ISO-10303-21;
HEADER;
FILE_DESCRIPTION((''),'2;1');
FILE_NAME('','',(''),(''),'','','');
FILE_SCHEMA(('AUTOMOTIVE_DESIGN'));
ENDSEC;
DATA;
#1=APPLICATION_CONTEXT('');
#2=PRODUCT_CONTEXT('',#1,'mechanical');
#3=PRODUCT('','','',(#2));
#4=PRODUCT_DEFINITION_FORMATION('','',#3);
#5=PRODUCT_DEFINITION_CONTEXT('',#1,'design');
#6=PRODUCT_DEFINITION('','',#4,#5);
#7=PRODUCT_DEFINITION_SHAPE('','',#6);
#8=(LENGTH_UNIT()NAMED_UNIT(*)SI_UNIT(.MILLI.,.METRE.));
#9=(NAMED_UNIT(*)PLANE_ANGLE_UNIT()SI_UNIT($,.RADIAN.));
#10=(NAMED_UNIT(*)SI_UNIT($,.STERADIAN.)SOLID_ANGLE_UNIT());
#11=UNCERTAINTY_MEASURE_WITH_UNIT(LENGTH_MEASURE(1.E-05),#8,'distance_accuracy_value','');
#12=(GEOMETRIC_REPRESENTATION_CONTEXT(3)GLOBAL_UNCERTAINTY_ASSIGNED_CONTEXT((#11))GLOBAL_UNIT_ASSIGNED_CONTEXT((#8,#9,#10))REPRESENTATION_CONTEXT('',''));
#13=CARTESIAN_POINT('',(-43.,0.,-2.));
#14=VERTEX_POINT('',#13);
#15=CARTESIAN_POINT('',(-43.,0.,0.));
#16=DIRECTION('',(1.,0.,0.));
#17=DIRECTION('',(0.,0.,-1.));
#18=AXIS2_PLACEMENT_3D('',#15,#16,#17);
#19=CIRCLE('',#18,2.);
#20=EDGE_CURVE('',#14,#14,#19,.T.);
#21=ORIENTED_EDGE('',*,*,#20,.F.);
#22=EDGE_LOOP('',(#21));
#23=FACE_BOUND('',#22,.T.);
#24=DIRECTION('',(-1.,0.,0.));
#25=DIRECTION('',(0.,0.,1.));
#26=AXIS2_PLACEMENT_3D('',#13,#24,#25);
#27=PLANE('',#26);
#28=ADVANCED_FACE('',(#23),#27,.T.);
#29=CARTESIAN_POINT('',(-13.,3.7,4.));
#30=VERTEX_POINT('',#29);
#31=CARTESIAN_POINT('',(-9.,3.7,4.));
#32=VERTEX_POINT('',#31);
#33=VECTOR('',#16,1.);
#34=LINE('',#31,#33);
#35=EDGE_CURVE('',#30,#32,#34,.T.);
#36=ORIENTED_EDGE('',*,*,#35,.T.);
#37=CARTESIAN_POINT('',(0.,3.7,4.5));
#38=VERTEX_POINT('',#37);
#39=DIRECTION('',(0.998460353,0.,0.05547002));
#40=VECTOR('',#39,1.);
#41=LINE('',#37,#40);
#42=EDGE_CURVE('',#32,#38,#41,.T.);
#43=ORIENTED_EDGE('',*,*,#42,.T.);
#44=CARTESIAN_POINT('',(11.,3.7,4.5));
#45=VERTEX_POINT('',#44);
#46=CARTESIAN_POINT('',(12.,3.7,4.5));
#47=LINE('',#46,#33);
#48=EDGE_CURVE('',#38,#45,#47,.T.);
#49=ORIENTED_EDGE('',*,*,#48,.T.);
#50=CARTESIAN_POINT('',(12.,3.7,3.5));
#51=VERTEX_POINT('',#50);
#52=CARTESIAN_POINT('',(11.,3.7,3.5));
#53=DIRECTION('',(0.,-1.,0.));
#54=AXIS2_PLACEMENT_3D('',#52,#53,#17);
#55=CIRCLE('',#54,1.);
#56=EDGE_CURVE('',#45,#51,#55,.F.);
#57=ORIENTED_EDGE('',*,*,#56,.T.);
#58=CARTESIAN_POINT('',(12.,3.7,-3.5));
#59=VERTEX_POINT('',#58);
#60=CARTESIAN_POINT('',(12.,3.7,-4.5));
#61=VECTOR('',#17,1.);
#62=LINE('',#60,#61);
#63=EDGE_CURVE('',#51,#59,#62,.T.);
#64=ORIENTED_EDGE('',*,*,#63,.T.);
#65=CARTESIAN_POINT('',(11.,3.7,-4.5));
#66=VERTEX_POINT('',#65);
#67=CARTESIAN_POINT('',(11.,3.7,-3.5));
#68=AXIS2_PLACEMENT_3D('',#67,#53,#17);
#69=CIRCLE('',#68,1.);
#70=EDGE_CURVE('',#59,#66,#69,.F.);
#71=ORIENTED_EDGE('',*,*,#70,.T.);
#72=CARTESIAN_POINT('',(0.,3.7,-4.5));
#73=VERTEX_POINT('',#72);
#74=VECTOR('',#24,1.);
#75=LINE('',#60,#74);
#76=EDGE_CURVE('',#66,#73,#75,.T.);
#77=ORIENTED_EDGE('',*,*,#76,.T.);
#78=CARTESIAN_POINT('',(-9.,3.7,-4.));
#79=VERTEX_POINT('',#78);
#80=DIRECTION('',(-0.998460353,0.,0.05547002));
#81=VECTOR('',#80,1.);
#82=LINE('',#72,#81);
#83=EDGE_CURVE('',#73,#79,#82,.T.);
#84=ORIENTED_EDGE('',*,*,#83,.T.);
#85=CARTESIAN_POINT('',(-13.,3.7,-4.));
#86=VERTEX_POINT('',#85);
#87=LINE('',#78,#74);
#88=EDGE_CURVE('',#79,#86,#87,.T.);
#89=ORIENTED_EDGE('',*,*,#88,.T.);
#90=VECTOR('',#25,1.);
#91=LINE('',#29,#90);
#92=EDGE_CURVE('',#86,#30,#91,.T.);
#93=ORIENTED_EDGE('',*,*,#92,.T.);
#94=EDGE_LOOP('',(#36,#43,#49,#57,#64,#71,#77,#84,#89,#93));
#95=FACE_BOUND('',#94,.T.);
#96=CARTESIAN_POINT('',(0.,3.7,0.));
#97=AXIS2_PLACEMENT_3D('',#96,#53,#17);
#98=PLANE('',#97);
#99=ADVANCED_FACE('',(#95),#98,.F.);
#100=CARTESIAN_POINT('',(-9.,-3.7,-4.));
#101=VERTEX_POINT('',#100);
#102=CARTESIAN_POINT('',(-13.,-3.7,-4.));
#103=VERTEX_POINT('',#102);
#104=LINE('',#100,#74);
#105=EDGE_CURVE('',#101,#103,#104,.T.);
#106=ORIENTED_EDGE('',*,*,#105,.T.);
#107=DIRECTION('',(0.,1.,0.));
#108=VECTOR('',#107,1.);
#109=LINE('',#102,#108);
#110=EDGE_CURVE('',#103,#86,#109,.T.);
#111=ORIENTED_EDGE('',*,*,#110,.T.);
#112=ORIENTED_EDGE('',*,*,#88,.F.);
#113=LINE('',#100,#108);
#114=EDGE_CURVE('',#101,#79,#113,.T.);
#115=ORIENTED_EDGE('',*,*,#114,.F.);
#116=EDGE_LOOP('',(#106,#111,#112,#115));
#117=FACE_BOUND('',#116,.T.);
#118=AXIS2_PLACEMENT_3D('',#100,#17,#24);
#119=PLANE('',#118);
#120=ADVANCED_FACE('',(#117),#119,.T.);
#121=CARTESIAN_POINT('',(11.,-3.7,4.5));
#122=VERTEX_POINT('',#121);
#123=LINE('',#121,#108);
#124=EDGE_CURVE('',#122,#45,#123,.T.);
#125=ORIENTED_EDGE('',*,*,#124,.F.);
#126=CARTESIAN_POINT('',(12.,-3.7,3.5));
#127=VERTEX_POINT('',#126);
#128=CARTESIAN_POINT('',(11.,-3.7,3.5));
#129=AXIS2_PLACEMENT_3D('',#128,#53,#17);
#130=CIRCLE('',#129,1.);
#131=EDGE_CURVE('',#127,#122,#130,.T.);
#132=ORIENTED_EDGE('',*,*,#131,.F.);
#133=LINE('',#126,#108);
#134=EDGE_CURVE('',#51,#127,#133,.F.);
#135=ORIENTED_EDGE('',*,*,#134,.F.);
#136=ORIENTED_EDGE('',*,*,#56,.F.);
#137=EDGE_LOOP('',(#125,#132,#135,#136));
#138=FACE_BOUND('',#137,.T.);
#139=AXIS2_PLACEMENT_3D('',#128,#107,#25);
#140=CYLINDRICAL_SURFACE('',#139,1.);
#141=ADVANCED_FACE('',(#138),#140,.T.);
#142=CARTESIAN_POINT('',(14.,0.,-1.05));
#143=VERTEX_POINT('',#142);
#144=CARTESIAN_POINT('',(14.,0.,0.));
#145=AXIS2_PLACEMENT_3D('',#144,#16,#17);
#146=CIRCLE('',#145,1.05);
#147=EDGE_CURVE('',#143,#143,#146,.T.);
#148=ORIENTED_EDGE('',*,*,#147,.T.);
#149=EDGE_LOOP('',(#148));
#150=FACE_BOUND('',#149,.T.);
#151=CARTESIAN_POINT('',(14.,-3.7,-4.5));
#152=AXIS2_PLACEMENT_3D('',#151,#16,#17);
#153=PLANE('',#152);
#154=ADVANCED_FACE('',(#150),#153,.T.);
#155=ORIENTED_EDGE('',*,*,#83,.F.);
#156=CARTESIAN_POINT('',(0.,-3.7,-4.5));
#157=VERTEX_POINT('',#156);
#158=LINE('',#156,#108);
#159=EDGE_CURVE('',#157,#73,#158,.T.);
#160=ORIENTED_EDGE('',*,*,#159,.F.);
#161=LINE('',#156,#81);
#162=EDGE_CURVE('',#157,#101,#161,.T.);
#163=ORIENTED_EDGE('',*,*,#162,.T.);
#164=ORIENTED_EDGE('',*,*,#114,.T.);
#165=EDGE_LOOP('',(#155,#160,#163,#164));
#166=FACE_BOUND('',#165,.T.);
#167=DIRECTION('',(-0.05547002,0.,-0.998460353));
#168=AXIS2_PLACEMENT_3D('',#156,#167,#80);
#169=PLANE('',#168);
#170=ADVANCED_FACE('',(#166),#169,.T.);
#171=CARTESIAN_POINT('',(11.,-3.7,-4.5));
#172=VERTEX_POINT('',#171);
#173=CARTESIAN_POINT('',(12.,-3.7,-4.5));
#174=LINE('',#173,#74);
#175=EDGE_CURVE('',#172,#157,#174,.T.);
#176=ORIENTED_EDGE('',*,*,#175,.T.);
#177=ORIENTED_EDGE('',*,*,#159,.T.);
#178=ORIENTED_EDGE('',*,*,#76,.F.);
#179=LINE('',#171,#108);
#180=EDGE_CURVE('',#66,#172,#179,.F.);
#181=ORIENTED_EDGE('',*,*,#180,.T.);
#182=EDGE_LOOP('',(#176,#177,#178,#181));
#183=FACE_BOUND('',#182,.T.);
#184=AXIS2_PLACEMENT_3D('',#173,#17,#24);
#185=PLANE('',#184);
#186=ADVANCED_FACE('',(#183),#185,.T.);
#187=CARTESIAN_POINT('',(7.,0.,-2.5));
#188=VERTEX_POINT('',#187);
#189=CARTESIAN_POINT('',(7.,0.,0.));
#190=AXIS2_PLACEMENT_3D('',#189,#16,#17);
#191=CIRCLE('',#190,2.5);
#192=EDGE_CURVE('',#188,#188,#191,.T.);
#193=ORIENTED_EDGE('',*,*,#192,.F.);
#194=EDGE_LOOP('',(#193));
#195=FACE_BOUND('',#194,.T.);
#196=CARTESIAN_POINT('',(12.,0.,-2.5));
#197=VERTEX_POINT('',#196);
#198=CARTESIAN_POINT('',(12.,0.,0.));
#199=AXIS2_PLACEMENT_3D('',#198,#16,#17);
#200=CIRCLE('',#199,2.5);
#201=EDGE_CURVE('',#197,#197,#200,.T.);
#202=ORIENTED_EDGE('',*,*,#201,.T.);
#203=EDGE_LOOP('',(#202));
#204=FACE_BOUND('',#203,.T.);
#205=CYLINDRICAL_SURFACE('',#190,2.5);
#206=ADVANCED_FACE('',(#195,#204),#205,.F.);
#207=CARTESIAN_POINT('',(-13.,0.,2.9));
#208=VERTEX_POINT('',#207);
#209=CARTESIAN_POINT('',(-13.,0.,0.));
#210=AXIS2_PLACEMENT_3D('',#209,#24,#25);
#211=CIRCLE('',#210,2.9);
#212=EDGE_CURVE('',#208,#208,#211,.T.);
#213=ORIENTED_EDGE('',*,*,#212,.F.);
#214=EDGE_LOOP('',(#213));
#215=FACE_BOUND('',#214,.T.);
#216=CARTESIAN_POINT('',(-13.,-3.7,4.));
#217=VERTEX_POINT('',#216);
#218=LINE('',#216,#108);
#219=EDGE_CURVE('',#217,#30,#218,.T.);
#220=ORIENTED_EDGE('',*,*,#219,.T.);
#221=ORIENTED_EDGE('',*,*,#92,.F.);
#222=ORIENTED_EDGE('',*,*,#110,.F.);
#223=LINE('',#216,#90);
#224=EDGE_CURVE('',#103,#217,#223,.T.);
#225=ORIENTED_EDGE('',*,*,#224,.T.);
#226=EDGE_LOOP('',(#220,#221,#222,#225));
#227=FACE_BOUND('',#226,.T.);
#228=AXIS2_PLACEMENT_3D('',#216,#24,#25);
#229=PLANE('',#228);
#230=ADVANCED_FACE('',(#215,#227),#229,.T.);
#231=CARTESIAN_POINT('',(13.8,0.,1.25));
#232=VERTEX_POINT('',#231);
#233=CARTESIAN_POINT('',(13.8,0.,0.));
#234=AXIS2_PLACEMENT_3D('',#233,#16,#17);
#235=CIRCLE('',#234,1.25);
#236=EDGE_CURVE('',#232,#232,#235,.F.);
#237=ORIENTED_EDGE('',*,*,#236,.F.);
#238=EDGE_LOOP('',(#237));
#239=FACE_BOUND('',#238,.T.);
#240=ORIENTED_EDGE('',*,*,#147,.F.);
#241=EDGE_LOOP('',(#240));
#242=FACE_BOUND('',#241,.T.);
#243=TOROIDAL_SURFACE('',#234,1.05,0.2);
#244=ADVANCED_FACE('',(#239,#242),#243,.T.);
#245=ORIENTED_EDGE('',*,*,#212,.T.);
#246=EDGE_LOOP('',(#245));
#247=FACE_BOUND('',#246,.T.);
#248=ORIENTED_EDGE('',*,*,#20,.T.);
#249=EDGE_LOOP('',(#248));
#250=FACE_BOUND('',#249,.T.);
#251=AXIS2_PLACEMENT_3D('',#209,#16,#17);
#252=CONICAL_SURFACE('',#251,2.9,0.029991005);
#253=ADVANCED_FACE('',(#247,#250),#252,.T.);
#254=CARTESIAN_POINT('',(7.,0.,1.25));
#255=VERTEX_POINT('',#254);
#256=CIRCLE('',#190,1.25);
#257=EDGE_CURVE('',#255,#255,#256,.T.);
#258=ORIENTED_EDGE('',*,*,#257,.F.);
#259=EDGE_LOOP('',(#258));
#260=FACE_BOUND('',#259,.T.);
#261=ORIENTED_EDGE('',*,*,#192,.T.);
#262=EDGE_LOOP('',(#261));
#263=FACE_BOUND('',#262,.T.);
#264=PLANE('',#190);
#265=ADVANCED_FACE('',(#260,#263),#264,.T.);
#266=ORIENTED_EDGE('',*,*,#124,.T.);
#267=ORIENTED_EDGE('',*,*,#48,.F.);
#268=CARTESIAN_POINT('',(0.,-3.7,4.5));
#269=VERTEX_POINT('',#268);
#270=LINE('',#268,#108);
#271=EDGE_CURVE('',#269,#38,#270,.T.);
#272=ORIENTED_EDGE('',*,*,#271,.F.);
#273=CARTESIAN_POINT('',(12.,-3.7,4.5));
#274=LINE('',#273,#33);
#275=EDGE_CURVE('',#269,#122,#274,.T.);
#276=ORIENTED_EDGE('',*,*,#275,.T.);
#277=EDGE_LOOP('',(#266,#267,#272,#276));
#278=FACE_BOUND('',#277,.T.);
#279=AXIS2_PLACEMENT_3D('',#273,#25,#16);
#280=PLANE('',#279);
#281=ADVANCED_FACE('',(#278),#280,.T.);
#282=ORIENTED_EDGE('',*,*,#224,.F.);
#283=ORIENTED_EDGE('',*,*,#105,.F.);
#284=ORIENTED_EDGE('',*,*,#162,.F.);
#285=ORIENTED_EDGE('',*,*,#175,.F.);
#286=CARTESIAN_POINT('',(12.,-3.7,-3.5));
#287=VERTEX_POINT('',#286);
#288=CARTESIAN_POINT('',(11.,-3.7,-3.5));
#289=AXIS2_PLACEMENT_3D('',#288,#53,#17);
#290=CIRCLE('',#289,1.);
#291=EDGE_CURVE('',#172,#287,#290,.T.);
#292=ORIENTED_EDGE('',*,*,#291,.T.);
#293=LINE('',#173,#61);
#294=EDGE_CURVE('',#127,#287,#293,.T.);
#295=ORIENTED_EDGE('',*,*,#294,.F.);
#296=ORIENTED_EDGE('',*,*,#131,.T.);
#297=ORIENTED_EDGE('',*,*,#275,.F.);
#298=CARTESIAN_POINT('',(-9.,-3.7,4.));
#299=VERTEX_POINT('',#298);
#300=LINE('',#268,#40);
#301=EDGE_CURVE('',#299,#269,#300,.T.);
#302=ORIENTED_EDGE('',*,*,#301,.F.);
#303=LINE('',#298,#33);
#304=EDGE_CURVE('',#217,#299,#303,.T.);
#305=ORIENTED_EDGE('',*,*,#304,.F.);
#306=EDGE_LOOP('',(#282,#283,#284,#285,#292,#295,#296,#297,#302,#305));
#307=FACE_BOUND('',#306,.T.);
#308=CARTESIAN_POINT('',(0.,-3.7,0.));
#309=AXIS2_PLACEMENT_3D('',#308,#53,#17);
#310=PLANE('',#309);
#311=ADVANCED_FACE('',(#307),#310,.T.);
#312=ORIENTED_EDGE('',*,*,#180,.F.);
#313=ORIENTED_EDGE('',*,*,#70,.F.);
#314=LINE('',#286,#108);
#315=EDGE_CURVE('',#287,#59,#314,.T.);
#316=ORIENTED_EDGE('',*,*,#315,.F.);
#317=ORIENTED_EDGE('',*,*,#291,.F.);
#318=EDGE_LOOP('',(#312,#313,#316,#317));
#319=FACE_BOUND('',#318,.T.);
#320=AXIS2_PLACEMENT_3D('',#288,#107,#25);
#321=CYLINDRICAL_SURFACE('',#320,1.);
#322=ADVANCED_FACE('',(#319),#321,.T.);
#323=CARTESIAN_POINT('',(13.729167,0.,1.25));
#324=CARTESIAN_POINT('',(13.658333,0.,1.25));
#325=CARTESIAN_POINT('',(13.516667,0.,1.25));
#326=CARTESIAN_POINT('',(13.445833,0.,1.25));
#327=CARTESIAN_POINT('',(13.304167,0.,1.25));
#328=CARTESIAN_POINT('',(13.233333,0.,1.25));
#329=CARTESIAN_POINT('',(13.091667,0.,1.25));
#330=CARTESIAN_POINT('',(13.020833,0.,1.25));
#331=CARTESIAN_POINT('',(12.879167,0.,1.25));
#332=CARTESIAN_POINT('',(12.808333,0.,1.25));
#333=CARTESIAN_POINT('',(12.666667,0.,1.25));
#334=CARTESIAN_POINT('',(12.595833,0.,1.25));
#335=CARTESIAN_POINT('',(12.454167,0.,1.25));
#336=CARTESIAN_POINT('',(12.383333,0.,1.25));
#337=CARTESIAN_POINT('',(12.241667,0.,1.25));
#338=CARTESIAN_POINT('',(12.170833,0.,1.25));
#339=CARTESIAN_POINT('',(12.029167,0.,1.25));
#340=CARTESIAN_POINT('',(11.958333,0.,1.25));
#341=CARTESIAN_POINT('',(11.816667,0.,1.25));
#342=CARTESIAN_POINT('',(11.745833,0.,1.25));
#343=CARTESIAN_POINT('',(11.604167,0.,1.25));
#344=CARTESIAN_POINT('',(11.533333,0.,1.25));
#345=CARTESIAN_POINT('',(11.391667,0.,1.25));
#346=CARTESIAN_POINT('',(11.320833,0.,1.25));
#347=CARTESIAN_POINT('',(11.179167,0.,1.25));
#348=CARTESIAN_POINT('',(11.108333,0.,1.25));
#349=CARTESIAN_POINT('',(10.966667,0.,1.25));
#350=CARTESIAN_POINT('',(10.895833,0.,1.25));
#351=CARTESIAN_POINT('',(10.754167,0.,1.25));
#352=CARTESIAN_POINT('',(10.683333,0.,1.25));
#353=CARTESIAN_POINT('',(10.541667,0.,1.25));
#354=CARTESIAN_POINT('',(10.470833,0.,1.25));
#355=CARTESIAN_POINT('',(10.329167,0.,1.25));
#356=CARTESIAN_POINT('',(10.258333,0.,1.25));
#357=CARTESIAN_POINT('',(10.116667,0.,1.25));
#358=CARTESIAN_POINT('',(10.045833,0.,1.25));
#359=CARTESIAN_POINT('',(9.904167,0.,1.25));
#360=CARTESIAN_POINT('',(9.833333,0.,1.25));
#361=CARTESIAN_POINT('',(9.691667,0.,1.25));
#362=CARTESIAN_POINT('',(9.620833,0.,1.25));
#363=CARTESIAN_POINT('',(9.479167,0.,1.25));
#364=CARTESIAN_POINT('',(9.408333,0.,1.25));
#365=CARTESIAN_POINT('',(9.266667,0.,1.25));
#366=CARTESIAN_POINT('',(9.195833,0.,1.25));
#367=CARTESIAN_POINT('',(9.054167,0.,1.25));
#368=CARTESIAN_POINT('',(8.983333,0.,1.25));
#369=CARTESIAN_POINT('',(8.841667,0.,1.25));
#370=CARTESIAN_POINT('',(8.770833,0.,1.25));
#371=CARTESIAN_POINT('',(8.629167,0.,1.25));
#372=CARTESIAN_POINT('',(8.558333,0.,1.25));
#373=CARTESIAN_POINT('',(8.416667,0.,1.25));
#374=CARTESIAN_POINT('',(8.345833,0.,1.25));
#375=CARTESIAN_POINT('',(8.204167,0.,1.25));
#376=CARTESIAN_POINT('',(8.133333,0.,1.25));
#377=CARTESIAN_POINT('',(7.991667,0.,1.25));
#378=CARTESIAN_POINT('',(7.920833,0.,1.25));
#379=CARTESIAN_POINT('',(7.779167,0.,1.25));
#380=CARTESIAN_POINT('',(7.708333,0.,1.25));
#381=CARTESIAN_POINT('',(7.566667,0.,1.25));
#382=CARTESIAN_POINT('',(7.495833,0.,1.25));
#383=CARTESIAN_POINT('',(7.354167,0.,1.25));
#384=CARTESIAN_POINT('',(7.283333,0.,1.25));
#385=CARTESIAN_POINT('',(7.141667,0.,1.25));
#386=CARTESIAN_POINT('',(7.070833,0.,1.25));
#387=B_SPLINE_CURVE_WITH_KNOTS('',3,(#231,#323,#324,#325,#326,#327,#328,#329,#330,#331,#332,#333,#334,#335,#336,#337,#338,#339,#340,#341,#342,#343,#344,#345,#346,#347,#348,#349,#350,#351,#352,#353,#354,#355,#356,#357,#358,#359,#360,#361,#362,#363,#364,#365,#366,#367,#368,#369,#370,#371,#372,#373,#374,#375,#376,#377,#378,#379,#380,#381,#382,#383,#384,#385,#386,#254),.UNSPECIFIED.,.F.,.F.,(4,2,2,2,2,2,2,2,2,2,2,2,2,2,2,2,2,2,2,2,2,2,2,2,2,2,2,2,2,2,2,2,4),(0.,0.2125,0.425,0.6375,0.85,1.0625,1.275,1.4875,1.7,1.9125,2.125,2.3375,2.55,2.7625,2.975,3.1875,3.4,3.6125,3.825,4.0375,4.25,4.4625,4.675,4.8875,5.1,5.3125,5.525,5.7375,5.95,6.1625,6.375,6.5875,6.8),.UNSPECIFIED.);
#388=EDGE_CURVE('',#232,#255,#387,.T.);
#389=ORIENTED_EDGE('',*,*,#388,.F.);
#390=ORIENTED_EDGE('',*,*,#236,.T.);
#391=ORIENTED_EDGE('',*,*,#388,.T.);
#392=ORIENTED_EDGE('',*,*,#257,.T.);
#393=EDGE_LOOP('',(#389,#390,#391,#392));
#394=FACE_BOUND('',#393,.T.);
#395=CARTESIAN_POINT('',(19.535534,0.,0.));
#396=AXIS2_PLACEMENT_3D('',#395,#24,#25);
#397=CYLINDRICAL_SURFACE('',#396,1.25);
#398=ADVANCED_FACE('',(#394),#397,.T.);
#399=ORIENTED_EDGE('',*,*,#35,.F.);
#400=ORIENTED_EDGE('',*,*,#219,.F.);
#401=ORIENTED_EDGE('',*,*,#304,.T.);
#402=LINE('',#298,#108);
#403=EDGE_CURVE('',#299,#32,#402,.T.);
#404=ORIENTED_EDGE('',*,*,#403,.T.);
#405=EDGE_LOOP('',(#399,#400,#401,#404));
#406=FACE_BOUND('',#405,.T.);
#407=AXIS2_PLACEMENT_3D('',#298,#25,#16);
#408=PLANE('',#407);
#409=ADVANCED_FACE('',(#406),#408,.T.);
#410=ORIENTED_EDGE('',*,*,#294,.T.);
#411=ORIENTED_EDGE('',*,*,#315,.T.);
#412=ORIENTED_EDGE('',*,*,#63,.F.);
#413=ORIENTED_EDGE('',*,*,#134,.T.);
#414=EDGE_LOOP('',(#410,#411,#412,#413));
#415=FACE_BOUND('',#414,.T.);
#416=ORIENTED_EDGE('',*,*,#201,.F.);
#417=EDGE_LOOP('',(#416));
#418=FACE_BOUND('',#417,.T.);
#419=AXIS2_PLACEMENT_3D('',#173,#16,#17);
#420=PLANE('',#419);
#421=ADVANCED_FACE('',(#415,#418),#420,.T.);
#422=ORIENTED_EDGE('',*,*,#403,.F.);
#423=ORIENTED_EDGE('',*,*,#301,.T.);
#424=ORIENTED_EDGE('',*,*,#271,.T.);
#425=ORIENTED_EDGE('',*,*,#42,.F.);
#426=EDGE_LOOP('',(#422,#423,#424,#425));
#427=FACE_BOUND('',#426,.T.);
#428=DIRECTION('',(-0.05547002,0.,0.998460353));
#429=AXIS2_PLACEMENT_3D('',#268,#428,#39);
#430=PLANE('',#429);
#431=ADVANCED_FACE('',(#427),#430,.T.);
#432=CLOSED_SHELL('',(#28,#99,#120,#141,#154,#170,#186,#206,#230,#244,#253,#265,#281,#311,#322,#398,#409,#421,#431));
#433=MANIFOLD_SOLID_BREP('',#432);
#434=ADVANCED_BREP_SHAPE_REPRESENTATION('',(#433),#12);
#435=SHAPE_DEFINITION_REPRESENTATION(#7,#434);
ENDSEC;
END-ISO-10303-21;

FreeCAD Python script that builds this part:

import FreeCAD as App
import Part
import Sketcher
Q = App.Units.Quantity


def edges_at(feature, points):
    """Names of the edges that pass closest to the given points."""
    edges = feature.Shape.Edges
    near = lambda p: min(range(len(edges)), key=lambda i: edges[i].distToShape(Part.Vertex(*p))[0])
    return sorted({f"Edge{near(p) + 1}" for p in points})

doc = App.newDocument("Part")
body = doc.addObject("PartDesign::Body", "Body")

sketch1 = doc.addObject("Sketcher::SketchObject", "Sketch")
body.addObject(sketch1)
sketch1.AttachmentSupport = (doc.XZ_Plane, [""])
sketch1.MapMode = "FlatFace"
sketch1.addGeometry([
    Part.LineSegment(App.Vector(12, 4.5, 0), App.Vector(12, -4.5, 0)),
    Part.LineSegment(App.Vector(12, -4.5, 0), App.Vector(0, -4.5, 0)),
    Part.LineSegment(App.Vector(0, -4.5, 0), App.Vector(-9, -4, 0)),
    Part.LineSegment(App.Vector(-9, -4, 0), App.Vector(-13, -4, 0)),
    Part.LineSegment(App.Vector(-13, -4, 0), App.Vector(-13, 4, 0)),
    Part.LineSegment(App.Vector(-13, 4, 0), App.Vector(-9, 4, 0)),
    Part.LineSegment(App.Vector(-9, 4, 0), App.Vector(0, 4.5, 0)),
    Part.LineSegment(App.Vector(0, 4.5, 0), App.Vector(12, 4.5, 0)),
], False)
sketch1.addConstraint([
    Sketcher.Constraint("Coincident", 0, 2, 1, 1),
    Sketcher.Constraint("Coincident", 1, 2, 2, 1),
    Sketcher.Constraint("Coincident", 2, 2, 3, 1),
    Sketcher.Constraint("Coincident", 3, 2, 4, 1),
    Sketcher.Constraint("Coincident", 4, 2, 5, 1),
    Sketcher.Constraint("Coincident", 5, 2, 6, 1),
    Sketcher.Constraint("Coincident", 6, 2, 7, 1),
    Sketcher.Constraint("Coincident", 7, 2, 0, 1),
    Sketcher.Constraint("Vertical", 0),
    Sketcher.Constraint("Horizontal", 1),
    Sketcher.Constraint("Horizontal", 3),
    Sketcher.Constraint("Vertical", 4),
    Sketcher.Constraint("Horizontal", 5),
    Sketcher.Constraint("Horizontal", 7),
    Sketcher.Constraint("Symmetric", 1, 2, 6, 2, -1, 1),
    Sketcher.Constraint("Symmetric", 2, 2, 5, 2, -1),
    Sketcher.Constraint("PointOnObject", 1, 2, -2),
    Sketcher.Constraint("DistanceX", 1, 2, 1, 1, Q("12 mm")),
    Sketcher.Constraint("DistanceX", 3, 2, 3, 1, Q("4 mm")),
    Sketcher.Constraint("DistanceY", 0, 2, 0, 1, Q("9 mm")),
    Sketcher.Constraint("DistanceY", 4, 1, 4, 2, Q("8 mm")),
    Sketcher.Constraint("DistanceX", 2, 2, -1, 1, Q("9 mm")),
])
pad1 = doc.addObject("PartDesign::Pad", "Pad")
body.addObject(pad1)
pad1.Profile = sketch1
pad1.Type = "TwoLengths"
pad1.Length = 3.7
pad1.Length2 = 3.7
pad1.Reversed = True

sketch2 = doc.addObject("Sketcher::SketchObject", "Sketch001")
body.addObject(sketch2)
sketch2.AttachmentSupport = (doc.YZ_Plane, [""])
sketch2.MapMode = "FlatFace"
sketch2.AttachmentOffset = App.Placement(App.Vector(0, 0, 12), App.Rotation())
sketch2.addGeometry(Part.Circle(App.Vector(0, 0, 0), App.Vector(0, 0, 1), 2.5), False)
sketch2.addConstraint([
    Sketcher.Constraint("Coincident", 0, 3, -1, 1),
    Sketcher.Constraint("Diameter", 0, Q("5 mm")),
])
pocket1 = doc.addObject("PartDesign::Pocket", "Pocket")
body.addObject(pocket1)
pocket1.Profile = sketch2
pocket1.Length = 5

sketch3 = doc.addObject("Sketcher::SketchObject", "Sketch002")
body.addObject(sketch3)
sketch3.AttachmentSupport = (doc.YZ_Plane, [""])
sketch3.MapMode = "FlatFace"
sketch3.AttachmentOffset = App.Placement(App.Vector(0, 0, 7), App.Rotation())
sketch3.addGeometry(Part.Circle(App.Vector(0, 0, 0), App.Vector(0, 0, 1), 1.2), False)
sketch3.addConstraint([
    Sketcher.Constraint("Coincident", 0, 3, -1, 1),
    Sketcher.Constraint("Diameter", 0, Q("2.5 mm")),
])
pad2 = doc.addObject("PartDesign::Pad", "Pad001")
body.addObject(pad2)
pad2.Profile = sketch3
pad2.Length = 7
doc.recompute()

fillet = doc.addObject("PartDesign::Fillet", "Fillet")
body.addObject(fillet)
fillet.Base = (pad2, edges_at(pad2, [(12, 0, -4.5), (12, 0, 4.5)]))
fillet.Radius = 1
doc.recompute()

fillet2 = doc.addObject("PartDesign::Fillet", "Fillet001")
body.addObject(fillet2)
fillet2.Base = (fillet, edges_at(fillet, [(14, 0, -1.25)]))
fillet2.Radius = 0.2

sketch4 = doc.addObject("Sketcher::SketchObject", "Sketch003")
body.addObject(sketch4)
sketch4.AttachmentSupport = (doc.XZ_Plane, [""])
sketch4.MapMode = "FlatFace"
sketch4.addGeometry([
    Part.LineSegment(App.Vector(-13, -2.9, 0), App.Vector(-43, -2, 0)),
    Part.LineSegment(App.Vector(-43, -2, 0), App.Vector(-43, 0, 0)),
    Part.LineSegment(App.Vector(-43, 0, 0), App.Vector(-13, 0, 0)),
    Part.LineSegment(App.Vector(-13, 0, 0), App.Vector(-13, -2.9, 0)),
], False)
sketch4.addConstraint([
    Sketcher.Constraint("Coincident", 0, 2, 1, 1),
    Sketcher.Constraint("Coincident", 1, 2, 2, 1),
    Sketcher.Constraint("Coincident", 2, 2, 3, 1),
    Sketcher.Constraint("Coincident", 3, 2, 0, 1),
    Sketcher.Constraint("Vertical", 1),
    Sketcher.Constraint("Horizontal", 2),
    Sketcher.Constraint("Vertical", 3),
    Sketcher.Constraint("PointOnObject", 1, 2, -1),
    Sketcher.Constraint("DistanceX", 2, 1, 2, 2, Q("30 mm")),
    Sketcher.Constraint("DistanceY", 1, 1, 1, 2, Q("2 mm")),
    Sketcher.Constraint("DistanceY", 3, 2, 3, 1, Q("2.9 mm")),
    Sketcher.Constraint("DistanceX", 0, 2, -1, 1, Q("43 mm")),
])
revolution = doc.addObject("PartDesign::Revolution", "Revolution")
body.addObject(revolution)
revolution.Profile = sketch4
revolution.ReferenceAxis = (sketch4, ["H_Axis"])
revolution.Angle = 360

doc.recompute()
